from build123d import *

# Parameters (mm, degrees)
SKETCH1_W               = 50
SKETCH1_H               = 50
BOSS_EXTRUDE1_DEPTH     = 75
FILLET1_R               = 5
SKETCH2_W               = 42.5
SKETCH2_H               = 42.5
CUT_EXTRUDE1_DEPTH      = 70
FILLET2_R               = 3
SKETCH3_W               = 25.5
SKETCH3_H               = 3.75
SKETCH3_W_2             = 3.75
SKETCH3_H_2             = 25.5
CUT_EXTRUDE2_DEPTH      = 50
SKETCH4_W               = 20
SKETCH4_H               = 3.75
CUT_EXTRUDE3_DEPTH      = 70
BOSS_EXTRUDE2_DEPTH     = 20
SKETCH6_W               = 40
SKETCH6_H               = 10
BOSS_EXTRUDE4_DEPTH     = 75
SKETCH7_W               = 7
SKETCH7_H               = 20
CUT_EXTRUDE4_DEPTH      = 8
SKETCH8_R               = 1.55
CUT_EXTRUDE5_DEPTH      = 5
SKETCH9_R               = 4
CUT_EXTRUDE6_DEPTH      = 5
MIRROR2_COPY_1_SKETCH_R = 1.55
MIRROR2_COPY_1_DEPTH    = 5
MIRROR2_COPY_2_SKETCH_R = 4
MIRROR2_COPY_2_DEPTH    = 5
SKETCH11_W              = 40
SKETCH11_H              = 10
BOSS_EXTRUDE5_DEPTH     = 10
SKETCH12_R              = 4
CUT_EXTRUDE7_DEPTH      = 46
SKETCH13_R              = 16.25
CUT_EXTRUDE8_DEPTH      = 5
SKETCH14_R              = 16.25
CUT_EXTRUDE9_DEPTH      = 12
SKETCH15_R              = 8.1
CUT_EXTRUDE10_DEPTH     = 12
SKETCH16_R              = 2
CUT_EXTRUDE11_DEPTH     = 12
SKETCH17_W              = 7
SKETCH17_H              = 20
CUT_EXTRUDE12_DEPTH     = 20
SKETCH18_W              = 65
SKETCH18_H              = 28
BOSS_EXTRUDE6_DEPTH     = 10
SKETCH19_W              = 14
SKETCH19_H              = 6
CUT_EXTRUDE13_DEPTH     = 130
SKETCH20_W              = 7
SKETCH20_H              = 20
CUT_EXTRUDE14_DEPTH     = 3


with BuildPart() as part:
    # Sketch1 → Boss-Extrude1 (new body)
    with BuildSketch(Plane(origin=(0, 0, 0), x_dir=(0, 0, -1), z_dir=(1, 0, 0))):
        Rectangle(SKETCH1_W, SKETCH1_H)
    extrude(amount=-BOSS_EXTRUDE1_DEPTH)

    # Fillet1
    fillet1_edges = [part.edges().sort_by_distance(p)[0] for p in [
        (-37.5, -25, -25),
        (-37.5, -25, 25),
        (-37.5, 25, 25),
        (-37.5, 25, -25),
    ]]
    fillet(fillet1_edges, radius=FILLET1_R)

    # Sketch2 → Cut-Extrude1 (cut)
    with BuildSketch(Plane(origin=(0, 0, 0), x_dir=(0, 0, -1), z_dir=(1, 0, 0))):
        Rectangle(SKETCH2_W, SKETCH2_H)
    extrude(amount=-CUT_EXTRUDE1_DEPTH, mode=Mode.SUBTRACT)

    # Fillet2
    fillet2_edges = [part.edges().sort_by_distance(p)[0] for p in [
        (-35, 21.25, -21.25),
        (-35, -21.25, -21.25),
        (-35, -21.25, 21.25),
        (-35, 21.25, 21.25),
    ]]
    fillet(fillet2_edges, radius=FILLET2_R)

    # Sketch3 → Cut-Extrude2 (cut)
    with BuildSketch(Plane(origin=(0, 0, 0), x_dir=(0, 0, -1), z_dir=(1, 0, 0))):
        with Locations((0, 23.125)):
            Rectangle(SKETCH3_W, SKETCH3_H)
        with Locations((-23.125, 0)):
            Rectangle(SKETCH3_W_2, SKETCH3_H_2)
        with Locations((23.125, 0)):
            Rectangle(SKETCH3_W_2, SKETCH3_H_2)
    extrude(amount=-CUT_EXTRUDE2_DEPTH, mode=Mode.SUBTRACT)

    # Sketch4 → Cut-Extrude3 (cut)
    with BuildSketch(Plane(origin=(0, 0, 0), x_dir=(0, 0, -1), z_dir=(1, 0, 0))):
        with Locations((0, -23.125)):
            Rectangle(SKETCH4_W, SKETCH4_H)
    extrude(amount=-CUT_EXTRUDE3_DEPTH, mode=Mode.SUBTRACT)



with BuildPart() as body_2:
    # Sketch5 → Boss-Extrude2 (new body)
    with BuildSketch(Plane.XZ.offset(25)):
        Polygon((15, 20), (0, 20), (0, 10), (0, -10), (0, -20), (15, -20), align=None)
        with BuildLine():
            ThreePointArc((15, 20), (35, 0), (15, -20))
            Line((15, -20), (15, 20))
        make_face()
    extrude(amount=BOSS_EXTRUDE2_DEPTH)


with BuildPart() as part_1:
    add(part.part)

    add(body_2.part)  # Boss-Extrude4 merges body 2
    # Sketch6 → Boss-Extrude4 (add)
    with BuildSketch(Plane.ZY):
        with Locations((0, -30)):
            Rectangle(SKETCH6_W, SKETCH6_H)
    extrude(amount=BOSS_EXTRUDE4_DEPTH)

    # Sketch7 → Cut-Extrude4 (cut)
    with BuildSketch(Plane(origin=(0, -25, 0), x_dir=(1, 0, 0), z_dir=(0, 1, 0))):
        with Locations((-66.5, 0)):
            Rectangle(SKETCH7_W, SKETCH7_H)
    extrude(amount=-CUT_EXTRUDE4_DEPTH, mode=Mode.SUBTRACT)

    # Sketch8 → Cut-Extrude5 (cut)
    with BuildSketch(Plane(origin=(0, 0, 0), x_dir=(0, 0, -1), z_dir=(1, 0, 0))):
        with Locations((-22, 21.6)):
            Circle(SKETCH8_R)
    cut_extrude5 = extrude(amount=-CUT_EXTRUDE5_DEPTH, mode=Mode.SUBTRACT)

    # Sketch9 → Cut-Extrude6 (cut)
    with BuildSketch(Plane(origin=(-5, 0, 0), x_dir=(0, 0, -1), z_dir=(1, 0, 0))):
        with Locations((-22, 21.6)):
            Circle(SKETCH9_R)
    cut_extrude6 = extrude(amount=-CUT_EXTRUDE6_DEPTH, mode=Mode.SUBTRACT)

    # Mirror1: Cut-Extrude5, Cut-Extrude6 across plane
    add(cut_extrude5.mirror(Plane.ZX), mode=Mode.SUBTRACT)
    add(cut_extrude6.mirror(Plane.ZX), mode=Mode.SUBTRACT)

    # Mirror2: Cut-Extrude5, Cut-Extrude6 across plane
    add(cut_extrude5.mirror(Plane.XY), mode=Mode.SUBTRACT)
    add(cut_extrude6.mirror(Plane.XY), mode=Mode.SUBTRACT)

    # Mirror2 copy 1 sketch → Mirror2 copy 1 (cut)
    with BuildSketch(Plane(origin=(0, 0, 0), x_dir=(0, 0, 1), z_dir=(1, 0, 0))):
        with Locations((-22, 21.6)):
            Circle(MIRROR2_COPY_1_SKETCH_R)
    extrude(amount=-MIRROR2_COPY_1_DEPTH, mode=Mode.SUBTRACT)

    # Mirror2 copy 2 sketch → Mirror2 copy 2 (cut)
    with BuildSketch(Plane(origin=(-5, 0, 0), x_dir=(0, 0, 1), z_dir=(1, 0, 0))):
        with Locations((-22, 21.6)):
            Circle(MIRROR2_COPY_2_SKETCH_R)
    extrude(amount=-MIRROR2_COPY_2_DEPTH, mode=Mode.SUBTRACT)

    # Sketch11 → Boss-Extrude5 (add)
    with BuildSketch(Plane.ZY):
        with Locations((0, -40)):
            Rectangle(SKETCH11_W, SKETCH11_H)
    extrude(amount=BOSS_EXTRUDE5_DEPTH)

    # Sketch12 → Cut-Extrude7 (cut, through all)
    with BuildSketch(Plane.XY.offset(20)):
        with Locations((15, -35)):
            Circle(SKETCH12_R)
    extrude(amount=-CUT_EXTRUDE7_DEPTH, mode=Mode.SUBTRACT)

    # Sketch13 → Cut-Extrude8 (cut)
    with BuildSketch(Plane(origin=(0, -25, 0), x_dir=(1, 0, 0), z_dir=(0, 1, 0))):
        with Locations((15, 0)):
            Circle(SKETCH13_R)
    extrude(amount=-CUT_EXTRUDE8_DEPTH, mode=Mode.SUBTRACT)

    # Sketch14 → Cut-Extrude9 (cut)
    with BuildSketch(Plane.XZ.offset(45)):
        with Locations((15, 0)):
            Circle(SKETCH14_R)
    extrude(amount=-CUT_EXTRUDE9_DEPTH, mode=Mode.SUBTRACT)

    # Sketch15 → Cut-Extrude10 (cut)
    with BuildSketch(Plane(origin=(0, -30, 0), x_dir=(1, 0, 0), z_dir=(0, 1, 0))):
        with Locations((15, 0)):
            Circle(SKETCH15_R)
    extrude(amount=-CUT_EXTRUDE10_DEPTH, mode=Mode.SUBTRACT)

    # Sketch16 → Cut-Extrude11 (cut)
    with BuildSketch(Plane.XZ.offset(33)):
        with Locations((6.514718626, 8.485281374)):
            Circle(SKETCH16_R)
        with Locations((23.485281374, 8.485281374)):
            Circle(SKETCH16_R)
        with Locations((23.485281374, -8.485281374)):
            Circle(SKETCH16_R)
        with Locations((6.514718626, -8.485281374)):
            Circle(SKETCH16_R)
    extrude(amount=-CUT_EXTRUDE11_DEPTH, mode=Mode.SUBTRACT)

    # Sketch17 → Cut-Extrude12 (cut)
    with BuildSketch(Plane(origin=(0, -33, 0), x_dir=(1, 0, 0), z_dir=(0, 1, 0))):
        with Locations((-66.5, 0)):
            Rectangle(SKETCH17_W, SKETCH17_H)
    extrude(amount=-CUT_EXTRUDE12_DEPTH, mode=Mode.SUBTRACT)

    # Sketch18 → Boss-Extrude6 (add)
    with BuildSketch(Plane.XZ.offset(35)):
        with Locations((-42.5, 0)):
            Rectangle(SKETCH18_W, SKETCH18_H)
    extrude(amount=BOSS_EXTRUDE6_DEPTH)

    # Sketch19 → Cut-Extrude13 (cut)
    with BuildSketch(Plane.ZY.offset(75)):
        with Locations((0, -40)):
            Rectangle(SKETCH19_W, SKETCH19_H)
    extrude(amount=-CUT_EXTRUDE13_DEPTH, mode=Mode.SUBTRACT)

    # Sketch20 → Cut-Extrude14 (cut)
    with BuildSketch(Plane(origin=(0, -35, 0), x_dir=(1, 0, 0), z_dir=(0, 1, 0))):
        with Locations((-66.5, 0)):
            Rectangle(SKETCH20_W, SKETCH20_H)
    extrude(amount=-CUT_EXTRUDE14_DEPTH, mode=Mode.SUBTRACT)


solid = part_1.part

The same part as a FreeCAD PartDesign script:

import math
import FreeCAD as App
import Part
import Sketcher
from FreeCAD import Vector
Q = App.Units.Quantity


def edges_at(feature, points):
    """Names of the edges that pass closest to the given points."""
    edges = feature.Shape.Edges
    near = lambda p: min(range(len(edges)), key=lambda i: edges[i].distToShape(Part.Vertex(*p))[0])
    return sorted({f"Edge{near(p) + 1}" for p in points})

doc = App.newDocument("Part")
body = doc.addObject("PartDesign::Body", "Body")

# Sketch on YZ plane
sketch1 = body.newObject("Sketcher::SketchObject", "Sketch")
sketch1.AttachmentSupport = (doc.getObject("YZ_Plane"), [""])
sketch1.MapMode = "FlatFace"
sketch1.addGeometry(Part.LineSegment(Vector(25, 25, 0), Vector(-25, 25, 0)), False)
sketch1.addGeometry(Part.LineSegment(Vector(-25, 25, 0), Vector(-25, -25, 0)), False)
sketch1.addGeometry(Part.LineSegment(Vector(-25, -25, 0), Vector(25, -25, 0)), False)
sketch1.addGeometry(Part.LineSegment(Vector(25, -25, 0), Vector(25, 25, 0)), False)
sketch1.addConstraint(Sketcher.Constraint("Coincident", 0, 2, 1, 1))
sketch1.addConstraint(Sketcher.Constraint("Coincident", 1, 2, 2, 1))
sketch1.addConstraint(Sketcher.Constraint("Coincident", 2, 2, 3, 1))
sketch1.addConstraint(Sketcher.Constraint("Coincident", 3, 2, 0, 1))
sketch1.addConstraint(Sketcher.Constraint("Horizontal", 0))
sketch1.addConstraint(Sketcher.Constraint("Vertical", 1))
sketch1.addConstraint(Sketcher.Constraint("Horizontal", 2))
sketch1.addConstraint(Sketcher.Constraint("Vertical", 3))
sketch1.addConstraint(Sketcher.Constraint("Symmetric", 0, 2, 2, 2, -1, 1))
sketch1.addConstraint(Sketcher.Constraint("Equal", 2, 1))
sketch1.addConstraint(Sketcher.Constraint("DistanceX", 0, 2, 0, 1, Q("50 mm")))
pad1 = body.newObject("PartDesign::Pad", "Pad")
pad1.Profile = sketch1
pad1.Length = 75
pad1.Reversed = True
doc.recompute()

fillet = body.newObject("PartDesign::Fillet", "Fillet")
fillet.Base = (pad1, edges_at(pad1, [
    (-37.5, -25, -25),
    (-37.5, -25, 25),
    (-37.5, 25, 25),
    (-37.5, 25, -25),
]))
fillet.Radius = 5

# Sketch on YZ plane
sketch2 = body.newObject("Sketcher::SketchObject", "Sketch001")
sketch2.AttachmentSupport = (doc.getObject("YZ_Plane"), [""])
sketch2.MapMode = "FlatFace"
sketch2.addGeometry(Part.LineSegment(Vector(21, 21, 0), Vector(-21, 21, 0)), False)
sketch2.addGeometry(Part.LineSegment(Vector(-21, 21, 0), Vector(-21, -21, 0)), False)
sketch2.addGeometry(Part.LineSegment(Vector(-21, -21, 0), Vector(21, -21, 0)), False)
sketch2.addGeometry(Part.LineSegment(Vector(21, -21, 0), Vector(21, 21, 0)), False)
sketch2.addConstraint(Sketcher.Constraint("Coincident", 0, 2, 1, 1))
sketch2.addConstraint(Sketcher.Constraint("Coincident", 1, 2, 2, 1))
sketch2.addConstraint(Sketcher.Constraint("Coincident", 2, 2, 3, 1))
sketch2.addConstraint(Sketcher.Constraint("Coincident", 3, 2, 0, 1))
sketch2.addConstraint(Sketcher.Constraint("Horizontal", 0))
sketch2.addConstraint(Sketcher.Constraint("Vertical", 1))
sketch2.addConstraint(Sketcher.Constraint("Horizontal", 2))
sketch2.addConstraint(Sketcher.Constraint("Vertical", 3))
sketch2.addConstraint(Sketcher.Constraint("Symmetric", 0, 2, 2, 2, -1, 1))
sketch2.addConstraint(Sketcher.Constraint("Equal", 2, 1))
sketch2.addConstraint(Sketcher.Constraint("DistanceX", 0, 2, 0, 1, Q("42.5 mm")))
pocket1 = body.newObject("PartDesign::Pocket", "Pocket")
pocket1.Profile = sketch2
pocket1.Length = 70
doc.recompute()

fillet2 = body.newObject("PartDesign::Fillet", "Fillet001")
fillet2.Base = (pocket1, edges_at(pocket1, [
    (-35, 21.25, -21.25),
    (-35, -21.25, -21.25),
    (-35, -21.25, 21.25),
    (-35, 21.25, 21.25),
]))
fillet2.Radius = 3

# Sketch on YZ plane
sketch3 = body.newObject("Sketcher::SketchObject", "Sketch002")
sketch3.AttachmentSupport = (doc.getObject("YZ_Plane"), [""])
sketch3.MapMode = "FlatFace"
sketch3.addGeometry(Part.LineSegment(Vector(25, 12.8, 0), Vector(21.2, 12.8, 0)), False)
sketch3.addGeometry(Part.LineSegment(Vector(21.2, 12.8, 0), Vector(21.2, -12.8, 0)), False)
sketch3.addGeometry(Part.LineSegment(Vector(21.2, -12.8, 0), Vector(25, -12.8, 0)), False)
sketch3.addGeometry(Part.LineSegment(Vector(25, -12.8, 0), Vector(25, 12.8, 0)), False)
sketch3.addGeometry(Part.LineSegment(Vector(12.8, 25, 0), Vector(-12.8, 25, 0)), False)
sketch3.addGeometry(Part.LineSegment(Vector(-12.8, 25, 0), Vector(-12.8, 21.2, 0)), False)
sketch3.addGeometry(Part.LineSegment(Vector(-12.8, 21.2, 0), Vector(12.8, 21.2, 0)), False)
sketch3.addGeometry(Part.LineSegment(Vector(12.8, 21.2, 0), Vector(12.8, 25, 0)), False)
sketch3.addGeometry(Part.LineSegment(Vector(12.8, -21.2, 0), Vector(-12.8, -21.2, 0)), False)
sketch3.addGeometry(Part.LineSegment(Vector(-12.8, -21.2, 0), Vector(-12.8, -25, 0)), False)
sketch3.addGeometry(Part.LineSegment(Vector(-12.8, -25, 0), Vector(12.8, -25, 0)), False)
sketch3.addGeometry(Part.LineSegment(Vector(12.8, -25, 0), Vector(12.8, -21.2, 0)), False)
sketch3.addConstraint(Sketcher.Constraint("Coincident", 0, 2, 1, 1))
sketch3.addConstraint(Sketcher.Constraint("Coincident", 1, 2, 2, 1))
sketch3.addConstraint(Sketcher.Constraint("Coincident", 2, 2, 3, 1))
sketch3.addConstraint(Sketcher.Constraint("Coincident", 3, 2, 0, 1))
sketch3.addConstraint(Sketcher.Constraint("Coincident", 4, 2, 5, 1))
sketch3.addConstraint(Sketcher.Constraint("Coincident", 5, 2, 6, 1))
sketch3.addConstraint(Sketcher.Constraint("Coincident", 6, 2, 7, 1))
sketch3.addConstraint(Sketcher.Constraint("Coincident", 7, 2, 4, 1))
sketch3.addConstraint(Sketcher.Constraint("Coincident", 8, 2, 9, 1))
sketch3.addConstraint(Sketcher.Constraint("Coincident", 9, 2, 10, 1))
sketch3.addConstraint(Sketcher.Constraint("Coincident", 10, 2, 11, 1))
sketch3.addConstraint(Sketcher.Constraint("Coincident", 11, 2, 8, 1))
sketch3.addConstraint(Sketcher.Constraint("Horizontal", 0))
sketch3.addConstraint(Sketcher.Constraint("Vertical", 1))
sketch3.addConstraint(Sketcher.Constraint("Horizontal", 2))
sketch3.addConstraint(Sketcher.Constraint("Vertical", 3))
sketch3.addConstraint(Sketcher.Constraint("Horizontal", 4))
sketch3.addConstraint(Sketcher.Constraint("Vertical", 5))
sketch3.addConstraint(Sketcher.Constraint("Horizontal", 6))
sketch3.addConstraint(Sketcher.Constraint("Vertical", 7))
sketch3.addConstraint(Sketcher.Constraint("Horizontal", 8))
sketch3.addConstraint(Sketcher.Constraint("Vertical", 9))
sketch3.addConstraint(Sketcher.Constraint("Horizontal", 10))
sketch3.addConstraint(Sketcher.Constraint("Vertical", 11))
sketch3.addConstraint(Sketcher.Constraint("Symmetric", 6, 2, 8, 2, -1, 1))
sketch3.addConstraint(Sketcher.Constraint("Symmetric", 4, 2, 10, 2, -1, 1))
sketch3.addConstraint(Sketcher.Constraint("Vertical", 5, 2, 8, 2))
sketch3.addConstraint(Sketcher.Constraint("Equal", 10, 1))
sketch3.addConstraint(Sketcher.Constraint("Equal", 2, 5))
sketch3.addConstraint(Sketcher.Constraint("DistanceX", 4, 2, 4, 1, Q("25.5 mm")))
sketch3.addConstraint(Sketcher.Constraint("DistanceX", -1, 1, 2, 2, Q("25 mm")))
sketch3.addConstraint(Sketcher.Constraint("DistanceY", -1, 1, 4, 2, Q("25 mm")))
sketch3.addConstraint(Sketcher.Constraint("DistanceX", 4, 2, 0, 2, Q("34 mm")))
sketch3.addConstraint(Sketcher.Constraint("DistanceY", 1, 2, 5, 2, Q("34 mm")))
pocket2 = body.newObject("PartDesign::Pocket", "Pocket001")
pocket2.Profile = sketch3
pocket2.Length = 50

# Sketch on YZ plane
sketch4 = body.newObject("Sketcher::SketchObject", "Sketch003")
sketch4.AttachmentSupport = (doc.getObject("YZ_Plane"), [""])
sketch4.MapMode = "FlatFace"
sketch4.addGeometry(Part.LineSegment(Vector(-21.2, 10, 0), Vector(-25, 10, 0)), False)
sketch4.addGeometry(Part.LineSegment(Vector(-25, 10, 0), Vector(-25, -10, 0)), False)
sketch4.addGeometry(Part.LineSegment(Vector(-25, -10, 0), Vector(-21.2, -10, 0)), False)
sketch4.addGeometry(Part.LineSegment(Vector(-21.2, -10, 0), Vector(-21.2, 10, 0)), False)
sketch4.addConstraint(Sketcher.Constraint("Coincident", 0, 2, 1, 1))
sketch4.addConstraint(Sketcher.Constraint("Coincident", 1, 2, 2, 1))
sketch4.addConstraint(Sketcher.Constraint("Coincident", 2, 2, 3, 1))
sketch4.addConstraint(Sketcher.Constraint("Coincident", 3, 2, 0, 1))
sketch4.addConstraint(Sketcher.Constraint("Horizontal", 0))
sketch4.addConstraint(Sketcher.Constraint("Vertical", 1))
sketch4.addConstraint(Sketcher.Constraint("Horizontal", 2))
sketch4.addConstraint(Sketcher.Constraint("Vertical", 3))
sketch4.addConstraint(Sketcher.Constraint("DistanceY", 1, 2, 1, 1, Q("20 mm")))
sketch4.addConstraint(Sketcher.Constraint("DistanceX", 0, 2, -1, 1, Q("25 mm")))
sketch4.addConstraint(Sketcher.Constraint("DistanceY", -1, 1, 0, 2, Q("10 mm")))
sketch4.addConstraint(Sketcher.Constraint("DistanceX", 0, 2, 0, 1, Q("3.75 mm")))
pocket3 = body.newObject("PartDesign::Pocket", "Pocket002")
pocket3.Profile = sketch4
pocket3.Length = 70
body2 = doc.addObject("PartDesign::Body", "Body001")

# Sketch on XZ plane
sketch5 = body2.newObject("Sketcher::SketchObject", "Sketch004")
sketch5.AttachmentSupport = (doc.getObject("XZ_Plane001"), [""])
sketch5.MapMode = "FlatFace"
sketch5.AttachmentOffset = App.Placement(Vector(0, 0, 25), App.Rotation())
sketch5.addGeometry(Part.LineSegment(Vector(15, 20, 0), Vector(0, 20, 0)), False)
sketch5.addGeometry(Part.LineSegment(Vector(0, 20, 0), Vector(0, -20, 0)), False)
sketch5.addGeometry(Part.LineSegment(Vector(0, -20, 0), Vector(15, -20, 0)), False)
sketch5.addGeometry(Part.ArcOfCircle(Part.Circle(Vector(15, 0, 0), Vector(0, 0, 1), 20), math.radians(-90), math.radians(90)), False)
sketch5.addConstraint(Sketcher.Constraint("Coincident", 0, 2, 1, 1))
sketch5.addConstraint(Sketcher.Constraint("Coincident", 1, 2, 2, 1))
sketch5.addConstraint(Sketcher.Constraint("Tangent", 2, 2, 3, 1))
sketch5.addConstraint(Sketcher.Constraint("Tangent", 3, 2, 0, 1))
sketch5.addConstraint(Sketcher.Constraint("Horizontal", 0))
sketch5.addConstraint(Sketcher.Constraint("Vertical", 1))
sketch5.addConstraint(Sketcher.Constraint("Horizontal", 2))
sketch5.addConstraint(Sketcher.Constraint("Symmetric", 0, 2, 1, 2, -1, 1))
sketch5.addConstraint(Sketcher.Constraint("Radius", 3, Q("20 mm")))
sketch5.addConstraint(Sketcher.Constraint("DistanceX", 0, 2, 0, 1, Q("15 mm")))
pad2 = body2.newObject("PartDesign::Pad", "Pad001")
pad2.Profile = sketch5
pad2.Length = 20
body.AllowCompound = True
doc.recompute()

boolean = body.newObject("PartDesign::Boolean", "Boolean")
boolean.Type = "Fuse"
boolean.addObjects([body2])

# Sketch on YZ plane
sketch6 = body.newObject("Sketcher::SketchObject", "Sketch005")
sketch6.AttachmentSupport = (doc.getObject("YZ_Plane"), [""])
sketch6.MapMode = "FlatFace"
sketch6.addGeometry(Part.LineSegment(Vector(-25, -20, 0), Vector(-35, -20, 0)), False)
sketch6.addGeometry(Part.LineSegment(Vector(-35, -20, 0), Vector(-35, 20, 0)), False)
sketch6.addGeometry(Part.LineSegment(Vector(-35, 20, 0), Vector(-25, 20, 0)), False)
sketch6.addGeometry(Part.LineSegment(Vector(-25, 20, 0), Vector(-25, -20, 0)), False)
sketch6.addConstraint(Sketcher.Constraint("Coincident", 0, 2, 1, 1))
sketch6.addConstraint(Sketcher.Constraint("Coincident", 1, 2, 2, 1))
sketch6.addConstraint(Sketcher.Constraint("Coincident", 2, 2, 3, 1))
sketch6.addConstraint(Sketcher.Constraint("Coincident", 3, 2, 0, 1))
sketch6.addConstraint(Sketcher.Constraint("Horizontal", 0))
sketch6.addConstraint(Sketcher.Constraint("Vertical", 1))
sketch6.addConstraint(Sketcher.Constraint("Horizontal", 2))
sketch6.addConstraint(Sketcher.Constraint("Vertical", 3))
sketch6.addConstraint(Sketcher.Constraint("DistanceX", 0, 2, 0, 1, Q("10 mm")))
sketch6.addConstraint(Sketcher.Constraint("DistanceY", 1, 1, 1, 2, Q("40 mm")))
sketch6.addConstraint(Sketcher.Constraint("DistanceX", 0, 2, -1, 1, Q("35 mm")))
sketch6.addConstraint(Sketcher.Constraint("DistanceY", 0, 2, -1, 1, Q("20 mm")))
pad3 = body.newObject("PartDesign::Pad", "Pad002")
pad3.Profile = sketch6
pad3.Length = 75
pad3.Reversed = True

# Sketch on XZ plane
sketch7 = body.newObject("Sketcher::SketchObject", "Sketch006")
sketch7.AttachmentSupport = (doc.getObject("XZ_Plane"), [""])
sketch7.MapMode = "FlatFace"
sketch7.AttachmentOffset = App.Placement(Vector(0, 0, 25), App.Rotation())
sketch7.addGeometry(Part.LineSegment(Vector(-70, -10, 0), Vector(-70, 10, 0)), False)
sketch7.addGeometry(Part.LineSegment(Vector(-70, 10, 0), Vector(-63, 10, 0)), False)
sketch7.addGeometry(Part.LineSegment(Vector(-63, 10, 0), Vector(-63, -10, 0)), False)
sketch7.addGeometry(Part.LineSegment(Vector(-63, -10, 0), Vector(-70, -10, 0)), False)
sketch7.addConstraint(Sketcher.Constraint("Coincident", 0, 2, 1, 1))
sketch7.addConstraint(Sketcher.Constraint("Coincident", 1, 2, 2, 1))
sketch7.addConstraint(Sketcher.Constraint("Coincident", 2, 2, 3, 1))
sketch7.addConstraint(Sketcher.Constraint("Coincident", 3, 2, 0, 1))
sketch7.addConstraint(Sketcher.Constraint("Vertical", 0))
sketch7.addConstraint(Sketcher.Constraint("Horizontal", 1))
sketch7.addConstraint(Sketcher.Constraint("Vertical", 2))
sketch7.addConstraint(Sketcher.Constraint("Horizontal", 3))
sketch7.addConstraint(Sketcher.Constraint("DistanceX", 1, 1, 1, 2, Q("7 mm")))
sketch7.addConstraint(Sketcher.Constraint("DistanceY", 0, 1, 0, 2, Q("20 mm")))
sketch7.addConstraint(Sketcher.Constraint("DistanceX", 0, 2, -1, 1, Q("70 mm")))
sketch7.addConstraint(Sketcher.Constraint("DistanceY", -1, 1, 0, 2, Q("10 mm")))
pocket4 = body.newObject("PartDesign::Pocket", "Pocket003")
pocket4.Profile = sketch7
pocket4.Length = 8
pocket4.Reversed = True

# Sketch on YZ plane
sketch8 = body.newObject("Sketcher::SketchObject", "Sketch007")
sketch8.AttachmentSupport = (doc.getObject("YZ_Plane"), [""])
sketch8.MapMode = "FlatFace"
sketch8.addGeometry(Part.Circle(Vector(21.6, 22, 0), Vector(0, 0, 1), 1.6), False)
sketch8.addConstraint(Sketcher.Constraint("Diameter", 0, Q("3.1 mm")))
sketch8.addConstraint(Sketcher.Constraint("DistanceY", -1, 1, 0, 3, Q("22 mm")))
sketch8.addConstraint(Sketcher.Constraint("DistanceX", -1, 1, 0, 3, Q("21.6 mm")))
pocket5 = body.newObject("PartDesign::Pocket", "Pocket004")
pocket5.Profile = sketch8
pocket5.Length = 5

# Sketch on YZ plane
sketch9 = body.newObject("Sketcher::SketchObject", "Sketch008")
sketch9.AttachmentSupport = (doc.getObject("YZ_Plane"), [""])
sketch9.MapMode = "FlatFace"
sketch9.AttachmentOffset = App.Placement(Vector(0, 0, -5), App.Rotation())
sketch9.addGeometry(Part.Circle(Vector(21.6, 22, 0), Vector(0, 0, 1), 4), False)
sketch9.addConstraint(Sketcher.Constraint("Diameter", 0, Q("8 mm")))
sketch9.addConstraint(Sketcher.Constraint("DistanceY", -1, 1, 0, 3, Q("22 mm")))
sketch9.addConstraint(Sketcher.Constraint("DistanceX", -1, 1, 0, 3, Q("21.6 mm")))
pocket6 = body.newObject("PartDesign::Pocket", "Pocket005")
pocket6.Profile = sketch9
pocket6.Length = 5
doc.recompute()

mirrored = body.newObject("PartDesign::Mirrored", "Mirrored")
mirrored.Originals = [pocket5, pocket6]
mirrored.MirrorPlane = (doc.getObject("XZ_Plane"), [""])
body.Tip = mirrored
doc.recompute()

mirrored2 = body.newObject("PartDesign::Mirrored", "Mirrored001")
mirrored2.Originals = [pocket5, pocket6]
mirrored2.MirrorPlane = (doc.getObject("XY_Plane"), [""])
body.Tip = mirrored2

# Sketch on YZ plane
sketch10 = body.newObject("Sketcher::SketchObject", "Sketch009")
sketch10.AttachmentSupport = (doc.getObject("YZ_Plane"), [""])
sketch10.MapMode = "FlatFace"
sketch10.addGeometry(Part.Circle(Vector(-21.6, -22, 0), Vector(0, 0, 1), 1.6), False)
sketch10.addConstraint(Sketcher.Constraint("Diameter", 0, Q("3.1 mm")))
sketch10.addConstraint(Sketcher.Constraint("DistanceY", 0, 3, -1, 1, Q("22 mm")))
sketch10.addConstraint(Sketcher.Constraint("DistanceX", 0, 3, -1, 1, Q("21.6 mm")))
pocket7 = body.newObject("PartDesign::Pocket", "Pocket006")
pocket7.Profile = sketch10
pocket7.Length = 5

# Sketch on YZ plane
sketch11 = body.newObject("Sketcher::SketchObject", "Sketch010")
sketch11.AttachmentSupport = (doc.getObject("YZ_Plane"), [""])
sketch11.MapMode = "FlatFace"
sketch11.AttachmentOffset = App.Placement(Vector(0, 0, -5), App.Rotation())
sketch11.addGeometry(Part.Circle(Vector(-21.6, -22, 0), Vector(0, 0, 1), 4), False)
sketch11.addConstraint(Sketcher.Constraint("Diameter", 0, Q("8 mm")))
sketch11.addConstraint(Sketcher.Constraint("DistanceY", 0, 3, -1, 1, Q("22 mm")))
sketch11.addConstraint(Sketcher.Constraint("DistanceX", 0, 3, -1, 1, Q("21.6 mm")))
pocket8 = body.newObject("PartDesign::Pocket", "Pocket007")
pocket8.Profile = sketch11
pocket8.Length = 5

# Sketch on YZ plane
sketch12 = body.newObject("Sketcher::SketchObject", "Sketch011")
sketch12.AttachmentSupport = (doc.getObject("YZ_Plane"), [""])
sketch12.MapMode = "FlatFace"
sketch12.addGeometry(Part.LineSegment(Vector(-35, -20, 0), Vector(-45, -20, 0)), False)
sketch12.addGeometry(Part.LineSegment(Vector(-45, -20, 0), Vector(-45, 20, 0)), False)
sketch12.addGeometry(Part.LineSegment(Vector(-45, 20, 0), Vector(-35, 20, 0)), False)
sketch12.addGeometry(Part.LineSegment(Vector(-35, 20, 0), Vector(-35, -20, 0)), False)
sketch12.addConstraint(Sketcher.Constraint("Coincident", 0, 2, 1, 1))
sketch12.addConstraint(Sketcher.Constraint("Coincident", 1, 2, 2, 1))
sketch12.addConstraint(Sketcher.Constraint("Coincident", 2, 2, 3, 1))
sketch12.addConstraint(Sketcher.Constraint("Coincident", 3, 2, 0, 1))
sketch12.addConstraint(Sketcher.Constraint("Horizontal", 0))
sketch12.addConstraint(Sketcher.Constraint("Vertical", 1))
sketch12.addConstraint(Sketcher.Constraint("Horizontal", 2))
sketch12.addConstraint(Sketcher.Constraint("Vertical", 3))
sketch12.addConstraint(Sketcher.Constraint("DistanceX", 0, 2, 0, 1, Q("10 mm")))
sketch12.addConstraint(Sketcher.Constraint("DistanceY", 1, 1, 1, 2, Q("40 mm")))
sketch12.addConstraint(Sketcher.Constraint("DistanceX", 0, 2, -1, 1, Q("45 mm")))
sketch12.addConstraint(Sketcher.Constraint("DistanceY", 0, 2, -1, 1, Q("20 mm")))
pad4 = body.newObject("PartDesign::Pad", "Pad003")
pad4.Profile = sketch12
pad4.Length = 10
pad4.Reversed = True

# Sketch on XY plane
sketch13 = body.newObject("Sketcher::SketchObject", "Sketch012")
sketch13.AttachmentSupport = (doc.getObject("XY_Plane"), [""])
sketch13.MapMode = "FlatFace"
sketch13.AttachmentOffset = App.Placement(Vector(0, 0, 20), App.Rotation())
sketch13.addGeometry(Part.Circle(Vector(15, -35, 0), Vector(0, 0, 1), 4), False)
sketch13.addConstraint(Sketcher.Constraint("Diameter", 0, Q("8 mm")))
sketch13.addConstraint(Sketcher.Constraint("DistanceX", -1, 1, 0, 3, Q("15 mm")))
sketch13.addConstraint(Sketcher.Constraint("DistanceY", 0, 3, -1, 1, Q("35 mm")))
pocket9 = body.newObject("PartDesign::Pocket", "Pocket008")
pocket9.Profile = sketch13
pocket9.Type = "ThroughAll"

# Sketch on XZ plane
sketch14 = body.newObject("Sketcher::SketchObject", "Sketch013")
sketch14.AttachmentSupport = (doc.getObject("XZ_Plane"), [""])
sketch14.MapMode = "FlatFace"
sketch14.AttachmentOffset = App.Placement(Vector(0, 0, 25), App.Rotation())
sketch14.addGeometry(Part.Circle(Vector(15, 0, 0), Vector(0, 0, 1), 16), False)
sketch14.addConstraint(Sketcher.Constraint("PointOnObject", 0, 3, -1))
sketch14.addConstraint(Sketcher.Constraint("Diameter", 0, Q("32.5 mm")))
sketch14.addConstraint(Sketcher.Constraint("DistanceX", -1, 1, 0, 3, Q("15 mm")))
pocket10 = body.newObject("PartDesign::Pocket", "Pocket009")
pocket10.Profile = sketch14
pocket10.Length = 5
pocket10.Reversed = True

# Sketch on XZ plane
sketch15 = body.newObject("Sketcher::SketchObject", "Sketch014")
sketch15.AttachmentSupport = (doc.getObject("XZ_Plane"), [""])
sketch15.MapMode = "FlatFace"
sketch15.AttachmentOffset = App.Placement(Vector(0, 0, 45), App.Rotation())
sketch15.addGeometry(Part.Circle(Vector(15, 0, 0), Vector(0, 0, 1), 16), False)
sketch15.addConstraint(Sketcher.Constraint("PointOnObject", 0, 3, -1))
sketch15.addConstraint(Sketcher.Constraint("Diameter", 0, Q("32.5 mm")))
sketch15.addConstraint(Sketcher.Constraint("DistanceX", -1, 1, 0, 3, Q("15 mm")))
pocket11 = body.newObject("PartDesign::Pocket", "Pocket010")
pocket11.Profile = sketch15
pocket11.Length = 12

# Sketch on XZ plane
sketch16 = body.newObject("Sketcher::SketchObject", "Sketch015")
sketch16.AttachmentSupport = (doc.getObject("XZ_Plane"), [""])
sketch16.MapMode = "FlatFace"
sketch16.AttachmentOffset = App.Placement(Vector(0, 0, 30), App.Rotation())
sketch16.addGeometry(Part.Circle(Vector(15, 0, 0), Vector(0, 0, 1), 8), False)
sketch16.addConstraint(Sketcher.Constraint("PointOnObject", 0, 3, -1))
sketch16.addConstraint(Sketcher.Constraint("Diameter", 0, Q("16.2 mm")))
sketch16.addConstraint(Sketcher.Constraint("DistanceX", -1, 1, 0, 3, Q("15 mm")))
pocket12 = body.newObject("PartDesign::Pocket", "Pocket011")
pocket12.Profile = sketch16
pocket12.Length = 12
pocket12.Reversed = True

# Sketch on XZ plane
sketch17 = body.newObject("Sketcher::SketchObject", "Sketch016")
sketch17.AttachmentSupport = (doc.getObject("XZ_Plane"), [""])
sketch17.MapMode = "FlatFace"
sketch17.AttachmentOffset = App.Placement(Vector(0, 0, 33), App.Rotation())
sketch17.addGeometry(Part.Circle(Vector(6.5, 8.5, 0), Vector(0, 0, 1), 2), False)
sketch17.addGeometry(Part.Circle(Vector(23.5, 8.5, 0), Vector(0, 0, 1), 2), False)
sketch17.addGeometry(Part.Circle(Vector(23.5, -8.5, 0), Vector(0, 0, 1), 2), False)
sketch17.addGeometry(Part.Circle(Vector(6.5, -8.5, 0), Vector(0, 0, 1), 2), False)
sketch17.addConstraint(Sketcher.Constraint("Equal", 0, 1))
sketch17.addConstraint(Sketcher.Constraint("Equal", 1, 2))
sketch17.addConstraint(Sketcher.Constraint("Equal", 2, 3))
sketch17.addConstraint(Sketcher.Constraint("Symmetric", 1, 3, 2, 3, -1))
sketch17.addConstraint(Sketcher.Constraint("Symmetric", 0, 3, 3, 3, -1))
sketch17.addConstraint(Sketcher.Constraint("Horizontal", 0, 3, 1, 3))
sketch17.addConstraint(Sketcher.Constraint("Diameter", 0, Q("4 mm")))
sketch17.addConstraint(Sketcher.Constraint("DistanceX", -1, 1, 0, 3, Q("6.514719 mm")))
sketch17.addConstraint(Sketcher.Constraint("DistanceY", -1, 1, 0, 3, Q("8.485281 mm")))
sketch17.addConstraint(Sketcher.Constraint("DistanceX", -1, 1, 1, 3, Q("23.485281 mm")))
pocket13 = body.newObject("PartDesign::Pocket", "Pocket012")
pocket13.Profile = sketch17
pocket13.Length = 12

# Sketch on XZ plane
sketch18 = body.newObject("Sketcher::SketchObject", "Sketch017")
sketch18.AttachmentSupport = (doc.getObject("XZ_Plane"), [""])
sketch18.MapMode = "FlatFace"
sketch18.AttachmentOffset = App.Placement(Vector(0, 0, 33), App.Rotation())
sketch18.addGeometry(Part.LineSegment(Vector(-70, -10, 0), Vector(-70, 10, 0)), False)
sketch18.addGeometry(Part.LineSegment(Vector(-70, 10, 0), Vector(-63, 10, 0)), False)
sketch18.addGeometry(Part.LineSegment(Vector(-63, 10, 0), Vector(-63, -10, 0)), False)
sketch18.addGeometry(Part.LineSegment(Vector(-63, -10, 0), Vector(-70, -10, 0)), False)
sketch18.addConstraint(Sketcher.Constraint("Coincident", 0, 2, 1, 1))
sketch18.addConstraint(Sketcher.Constraint("Coincident", 1, 2, 2, 1))
sketch18.addConstraint(Sketcher.Constraint("Coincident", 2, 2, 3, 1))
sketch18.addConstraint(Sketcher.Constraint("Coincident", 3, 2, 0, 1))
sketch18.addConstraint(Sketcher.Constraint("Vertical", 0))
sketch18.addConstraint(Sketcher.Constraint("Horizontal", 1))
sketch18.addConstraint(Sketcher.Constraint("Vertical", 2))
sketch18.addConstraint(Sketcher.Constraint("Horizontal", 3))
sketch18.addConstraint(Sketcher.Constraint("DistanceX", 1, 1, 1, 2, Q("7 mm")))
sketch18.addConstraint(Sketcher.Constraint("DistanceY", 0, 1, 0, 2, Q("20 mm")))
sketch18.addConstraint(Sketcher.Constraint("DistanceX", 0, 2, -1, 1, Q("70 mm")))
sketch18.addConstraint(Sketcher.Constraint("DistanceY", -1, 1, 0, 2, Q("10 mm")))
pocket14 = body.newObject("PartDesign::Pocket", "Pocket013")
pocket14.Profile = sketch18
pocket14.Length = 20
pocket14.Reversed = True

# Sketch on XZ plane
sketch19 = body.newObject("Sketcher::SketchObject", "Sketch018")
sketch19.AttachmentSupport = (doc.getObject("XZ_Plane"), [""])
sketch19.MapMode = "FlatFace"
sketch19.AttachmentOffset = App.Placement(Vector(0, 0, 35), App.Rotation())
sketch19.addGeometry(Part.LineSegment(Vector(-75, 14, 0), Vector(-75, -14, 0)), False)
sketch19.addGeometry(Part.LineSegment(Vector(-75, -14, 0), Vector(-10, -14, 0)), False)
sketch19.addGeometry(Part.LineSegment(Vector(-10, -14, 0), Vector(-10, 14, 0)), False)
sketch19.addGeometry(Part.LineSegment(Vector(-10, 14, 0), Vector(-75, 14, 0)), False)
sketch19.addConstraint(Sketcher.Constraint("Coincident", 0, 2, 1, 1))
sketch19.addConstraint(Sketcher.Constraint("Coincident", 1, 2, 2, 1))
sketch19.addConstraint(Sketcher.Constraint("Coincident", 2, 2, 3, 1))
sketch19.addConstraint(Sketcher.Constraint("Coincident", 3, 2, 0, 1))
sketch19.addConstraint(Sketcher.Constraint("Vertical", 0))
sketch19.addConstraint(Sketcher.Constraint("Horizontal", 1))
sketch19.addConstraint(Sketcher.Constraint("Vertical", 2))
sketch19.addConstraint(Sketcher.Constraint("Horizontal", 3))
sketch19.addConstraint(Sketcher.Constraint("DistanceX", 1, 1, 1, 2, Q("65 mm")))
sketch19.addConstraint(Sketcher.Constraint("DistanceY", 0, 2, 0, 1, Q("28 mm")))
sketch19.addConstraint(Sketcher.Constraint("DistanceX", 0, 2, -1, 1, Q("75 mm")))
sketch19.addConstraint(Sketcher.Constraint("DistanceY", 0, 2, -1, 1, Q("14 mm")))
pad5 = body.newObject("PartDesign::Pad", "Pad004")
pad5.Profile = sketch19
pad5.Length = 10

# Sketch on YZ plane
sketch20 = body.newObject("Sketcher::SketchObject", "Sketch019")
sketch20.AttachmentSupport = (doc.getObject("YZ_Plane"), [""])
sketch20.MapMode = "FlatFace"
sketch20.AttachmentOffset = App.Placement(Vector(0, 0, -75), App.Rotation())
sketch20.addGeometry(Part.LineSegment(Vector(-37, -7, 0), Vector(-43, -7, 0)), False)
sketch20.addGeometry(Part.LineSegment(Vector(-43, -7, 0), Vector(-43, 7, 0)), False)
sketch20.addGeometry(Part.LineSegment(Vector(-43, 7, 0), Vector(-37, 7, 0)), False)
sketch20.addGeometry(Part.LineSegment(Vector(-37, 7, 0), Vector(-37, -7, 0)), False)
sketch20.addConstraint(Sketcher.Constraint("Coincident", 0, 2, 1, 1))
sketch20.addConstraint(Sketcher.Constraint("Coincident", 1, 2, 2, 1))
sketch20.addConstraint(Sketcher.Constraint("Coincident", 2, 2, 3, 1))
sketch20.addConstraint(Sketcher.Constraint("Coincident", 3, 2, 0, 1))
sketch20.addConstraint(Sketcher.Constraint("Horizontal", 0))
sketch20.addConstraint(Sketcher.Constraint("Vertical", 1))
sketch20.addConstraint(Sketcher.Constraint("Horizontal", 2))
sketch20.addConstraint(Sketcher.Constraint("Vertical", 3))
sketch20.addConstraint(Sketcher.Constraint("DistanceX", 0, 2, 0, 1, Q("6 mm")))
sketch20.addConstraint(Sketcher.Constraint("DistanceY", 1, 1, 1, 2, Q("14 mm")))
sketch20.addConstraint(Sketcher.Constraint("DistanceX", 0, 2, -1, 1, Q("43 mm")))
sketch20.addConstraint(Sketcher.Constraint("DistanceY", 0, 2, -1, 1, Q("7 mm")))
pocket15 = body.newObject("PartDesign::Pocket", "Pocket014")
pocket15.Profile = sketch20
pocket15.Length = 130
pocket15.Reversed = True

# Sketch on XZ plane
sketch21 = body.newObject("Sketcher::SketchObject", "Sketch020")
sketch21.AttachmentSupport = (doc.getObject("XZ_Plane"), [""])
sketch21.MapMode = "FlatFace"
sketch21.AttachmentOffset = App.Placement(Vector(0, 0, 35), App.Rotation())
sketch21.addGeometry(Part.LineSegment(Vector(-70, -10, 0), Vector(-70, 10, 0)), False)
sketch21.addGeometry(Part.LineSegment(Vector(-70, 10, 0), Vector(-63, 10, 0)), False)
sketch21.addGeometry(Part.LineSegment(Vector(-63, 10, 0), Vector(-63, -10, 0)), False)
sketch21.addGeometry(Part.LineSegment(Vector(-63, -10, 0), Vector(-70, -10, 0)), False)
sketch21.addConstraint(Sketcher.Constraint("Coincident", 0, 2, 1, 1))
sketch21.addConstraint(Sketcher.Constraint("Coincident", 1, 2, 2, 1))
sketch21.addConstraint(Sketcher.Constraint("Coincident", 2, 2, 3, 1))
sketch21.addConstraint(Sketcher.Constraint("Coincident", 3, 2, 0, 1))
sketch21.addConstraint(Sketcher.Constraint("Vertical", 0))
sketch21.addConstraint(Sketcher.Constraint("Horizontal", 1))
sketch21.addConstraint(Sketcher.Constraint("Vertical", 2))
sketch21.addConstraint(Sketcher.Constraint("Horizontal", 3))
sketch21.addConstraint(Sketcher.Constraint("DistanceX", 1, 1, 1, 2, Q("7 mm")))
sketch21.addConstraint(Sketcher.Constraint("DistanceY", 0, 1, 0, 2, Q("20 mm")))
sketch21.addConstraint(Sketcher.Constraint("DistanceX", 0, 2, -1, 1, Q("70 mm")))
sketch21.addConstraint(Sketcher.Constraint("DistanceY", -1, 1, 0, 2, Q("10 mm")))
pocket16 = body.newObject("PartDesign::Pocket", "Pocket015")
pocket16.Profile = sketch21
pocket16.Length = 3
pocket16.Reversed = True

doc.recompute()
